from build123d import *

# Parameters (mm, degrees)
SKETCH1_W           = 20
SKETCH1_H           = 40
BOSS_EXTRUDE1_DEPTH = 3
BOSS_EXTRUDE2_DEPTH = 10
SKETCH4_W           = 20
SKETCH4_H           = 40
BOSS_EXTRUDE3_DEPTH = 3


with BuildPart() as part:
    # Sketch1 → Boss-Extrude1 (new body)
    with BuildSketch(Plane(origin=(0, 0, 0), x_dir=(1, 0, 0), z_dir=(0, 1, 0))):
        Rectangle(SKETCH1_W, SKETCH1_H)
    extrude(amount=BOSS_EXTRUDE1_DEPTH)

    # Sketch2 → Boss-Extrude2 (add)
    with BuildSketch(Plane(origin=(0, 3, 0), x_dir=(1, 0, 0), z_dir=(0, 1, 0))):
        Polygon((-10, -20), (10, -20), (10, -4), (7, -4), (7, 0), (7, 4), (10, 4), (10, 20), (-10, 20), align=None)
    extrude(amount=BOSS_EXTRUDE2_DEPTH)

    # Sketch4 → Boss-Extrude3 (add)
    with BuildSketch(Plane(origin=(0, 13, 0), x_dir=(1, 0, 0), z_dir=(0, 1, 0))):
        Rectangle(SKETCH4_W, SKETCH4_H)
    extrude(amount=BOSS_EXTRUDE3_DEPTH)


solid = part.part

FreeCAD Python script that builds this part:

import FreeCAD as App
import Part
import Sketcher
Q = App.Units.Quantity

doc = App.newDocument("Part")
body = doc.addObject("PartDesign::Body", "Body")

# Sketch on XZ plane
sketch1 = body.newObject("Sketcher::SketchObject", "Sketch")
sketch1.AttachmentSupport = (doc.getObject("XZ_Plane"), [""])
sketch1.MapMode = "FlatFace"
sketch1.addGeometry([
    Part.LineSegment(App.Vector(-10, -20, 0), App.Vector(-10, 20, 0)),
    Part.LineSegment(App.Vector(-10, 20, 0), App.Vector(10, 20, 0)),
    Part.LineSegment(App.Vector(10, 20, 0), App.Vector(10, -20, 0)),
    Part.LineSegment(App.Vector(10, -20, 0), App.Vector(-10, -20, 0)),
], False)
sketch1.addConstraint([
    Sketcher.Constraint("Coincident", 0, 2, 1, 1),
    Sketcher.Constraint("Coincident", 1, 2, 2, 1),
    Sketcher.Constraint("Coincident", 2, 2, 3, 1),
    Sketcher.Constraint("Coincident", 3, 2, 0, 1),
    Sketcher.Constraint("Vertical", 0),
    Sketcher.Constraint("Horizontal", 1),
    Sketcher.Constraint("Vertical", 2),
    Sketcher.Constraint("Horizontal", 3),
    Sketcher.Constraint("Symmetric", 0, 2, 2, 2, -1, 1),
    Sketcher.Constraint("DistanceX", 1, 1, 1, 2, Q("20 mm")),
    Sketcher.Constraint("DistanceY", 0, 1, 0, 2, Q("40 mm")),
])
pad1 = body.newObject("PartDesign::Pad", "Pad")
pad1.Profile = sketch1
pad1.Length = 3
pad1.Reversed = True

# Sketch on XZ plane
sketch2 = body.newObject("Sketcher::SketchObject", "Sketch001")
sketch2.AttachmentSupport = (doc.getObject("XZ_Plane"), [""])
sketch2.MapMode = "FlatFace"
sketch2.AttachmentOffset = App.Placement(App.Vector(0, 0, -3), App.Rotation())
sketch2.addGeometry([
    Part.LineSegment(App.Vector(-10, 20, 0), App.Vector(10, 20, 0)),  # 0
    Part.LineSegment(App.Vector(10, 20, 0), App.Vector(10, 4, 0)),  # 1
    Part.LineSegment(App.Vector(10, 4, 0), App.Vector(7, 4, 0)),  # 2
    Part.LineSegment(App.Vector(7, 4, 0), App.Vector(7, -4, 0)),  # 3
    Part.LineSegment(App.Vector(7, -4, 0), App.Vector(10, -4, 0)),  # 4
    Part.LineSegment(App.Vector(10, -4, 0), App.Vector(10, -20, 0)),  # 5
    Part.LineSegment(App.Vector(10, -20, 0), App.Vector(-10, -20, 0)),  # 6
    Part.LineSegment(App.Vector(-10, -20, 0), App.Vector(-10, 20, 0)),  # 7
], False)
sketch2.addConstraint([
    Sketcher.Constraint("Coincident", 0, 2, 1, 1),
    Sketcher.Constraint("Coincident", 1, 2, 2, 1),
    Sketcher.Constraint("Coincident", 2, 2, 3, 1),
    Sketcher.Constraint("Coincident", 3, 2, 4, 1),
    Sketcher.Constraint("Coincident", 4, 2, 5, 1),
    Sketcher.Constraint("Coincident", 5, 2, 6, 1),
    Sketcher.Constraint("Coincident", 6, 2, 7, 1),
    Sketcher.Constraint("Coincident", 7, 2, 0, 1),
    Sketcher.Constraint("Horizontal", 0),
    Sketcher.Constraint("Vertical", 1),
    Sketcher.Constraint("Horizontal", 2),
    Sketcher.Constraint("Vertical", 3),
    Sketcher.Constraint("Horizontal", 4),
    Sketcher.Constraint("Vertical", 5),
    Sketcher.Constraint("Horizontal", 6),
    Sketcher.Constraint("Vertical", 7),
    Sketcher.Constraint("Symmetric", 0, 2, 6, 2, -1, 1),
    Sketcher.Constraint("Symmetric", 1, 2, 4, 2, -1),
    Sketcher.Constraint("DistanceX", 0, 1, 0, 2, Q("20 mm")),
    Sketcher.Constraint("DistanceX", 2, 2, 2, 1, Q("3 mm")),
    Sketcher.Constraint("DistanceY", 1, 2, 1, 1, Q("16 mm")),
    Sketcher.Constraint("DistanceY", 3, 2, 3, 1, Q("8 mm")),
])
pad2 = body.newObject("PartDesign::Pad", "Pad001")
pad2.Profile = sketch2
pad2.Length = 10
pad2.Reversed = True

# Sketch on XZ plane
sketch3 = body.newObject("Sketcher::SketchObject", "Sketch002")
sketch3.AttachmentSupport = (doc.getObject("XZ_Plane"), [""])
sketch3.MapMode = "FlatFace"
sketch3.AttachmentOffset = App.Placement(App.Vector(0, 0, -13), App.Rotation())
sketch3.addGeometry([
    Part.LineSegment(App.Vector(-10, -20, 0), App.Vector(-10, 20, 0)),
    Part.LineSegment(App.Vector(-10, 20, 0), App.Vector(10, 20, 0)),
    Part.LineSegment(App.Vector(10, 20, 0), App.Vector(10, -20, 0)),
    Part.LineSegment(App.Vector(10, -20, 0), App.Vector(-10, -20, 0)),
], False)
sketch3.addConstraint([
    Sketcher.Constraint("Coincident", 0, 2, 1, 1),
    Sketcher.Constraint("Coincident", 1, 2, 2, 1),
    Sketcher.Constraint("Coincident", 2, 2, 3, 1),
    Sketcher.Constraint("Coincident", 3, 2, 0, 1),
    Sketcher.Constraint("Vertical", 0),
    Sketcher.Constraint("Horizontal", 1),
    Sketcher.Constraint("Vertical", 2),
    Sketcher.Constraint("Horizontal", 3),
    Sketcher.Constraint("Symmetric", 0, 2, 2, 2, -1, 1),
    Sketcher.Constraint("DistanceX", 1, 1, 1, 2, Q("20 mm")),
    Sketcher.Constraint("DistanceY", 0, 1, 0, 2, Q("40 mm")),
])
pad3 = body.newObject("PartDesign::Pad", "Pad002")
pad3.Profile = sketch3
pad3.Length = 3
pad3.Reversed = True

doc.recompute()
